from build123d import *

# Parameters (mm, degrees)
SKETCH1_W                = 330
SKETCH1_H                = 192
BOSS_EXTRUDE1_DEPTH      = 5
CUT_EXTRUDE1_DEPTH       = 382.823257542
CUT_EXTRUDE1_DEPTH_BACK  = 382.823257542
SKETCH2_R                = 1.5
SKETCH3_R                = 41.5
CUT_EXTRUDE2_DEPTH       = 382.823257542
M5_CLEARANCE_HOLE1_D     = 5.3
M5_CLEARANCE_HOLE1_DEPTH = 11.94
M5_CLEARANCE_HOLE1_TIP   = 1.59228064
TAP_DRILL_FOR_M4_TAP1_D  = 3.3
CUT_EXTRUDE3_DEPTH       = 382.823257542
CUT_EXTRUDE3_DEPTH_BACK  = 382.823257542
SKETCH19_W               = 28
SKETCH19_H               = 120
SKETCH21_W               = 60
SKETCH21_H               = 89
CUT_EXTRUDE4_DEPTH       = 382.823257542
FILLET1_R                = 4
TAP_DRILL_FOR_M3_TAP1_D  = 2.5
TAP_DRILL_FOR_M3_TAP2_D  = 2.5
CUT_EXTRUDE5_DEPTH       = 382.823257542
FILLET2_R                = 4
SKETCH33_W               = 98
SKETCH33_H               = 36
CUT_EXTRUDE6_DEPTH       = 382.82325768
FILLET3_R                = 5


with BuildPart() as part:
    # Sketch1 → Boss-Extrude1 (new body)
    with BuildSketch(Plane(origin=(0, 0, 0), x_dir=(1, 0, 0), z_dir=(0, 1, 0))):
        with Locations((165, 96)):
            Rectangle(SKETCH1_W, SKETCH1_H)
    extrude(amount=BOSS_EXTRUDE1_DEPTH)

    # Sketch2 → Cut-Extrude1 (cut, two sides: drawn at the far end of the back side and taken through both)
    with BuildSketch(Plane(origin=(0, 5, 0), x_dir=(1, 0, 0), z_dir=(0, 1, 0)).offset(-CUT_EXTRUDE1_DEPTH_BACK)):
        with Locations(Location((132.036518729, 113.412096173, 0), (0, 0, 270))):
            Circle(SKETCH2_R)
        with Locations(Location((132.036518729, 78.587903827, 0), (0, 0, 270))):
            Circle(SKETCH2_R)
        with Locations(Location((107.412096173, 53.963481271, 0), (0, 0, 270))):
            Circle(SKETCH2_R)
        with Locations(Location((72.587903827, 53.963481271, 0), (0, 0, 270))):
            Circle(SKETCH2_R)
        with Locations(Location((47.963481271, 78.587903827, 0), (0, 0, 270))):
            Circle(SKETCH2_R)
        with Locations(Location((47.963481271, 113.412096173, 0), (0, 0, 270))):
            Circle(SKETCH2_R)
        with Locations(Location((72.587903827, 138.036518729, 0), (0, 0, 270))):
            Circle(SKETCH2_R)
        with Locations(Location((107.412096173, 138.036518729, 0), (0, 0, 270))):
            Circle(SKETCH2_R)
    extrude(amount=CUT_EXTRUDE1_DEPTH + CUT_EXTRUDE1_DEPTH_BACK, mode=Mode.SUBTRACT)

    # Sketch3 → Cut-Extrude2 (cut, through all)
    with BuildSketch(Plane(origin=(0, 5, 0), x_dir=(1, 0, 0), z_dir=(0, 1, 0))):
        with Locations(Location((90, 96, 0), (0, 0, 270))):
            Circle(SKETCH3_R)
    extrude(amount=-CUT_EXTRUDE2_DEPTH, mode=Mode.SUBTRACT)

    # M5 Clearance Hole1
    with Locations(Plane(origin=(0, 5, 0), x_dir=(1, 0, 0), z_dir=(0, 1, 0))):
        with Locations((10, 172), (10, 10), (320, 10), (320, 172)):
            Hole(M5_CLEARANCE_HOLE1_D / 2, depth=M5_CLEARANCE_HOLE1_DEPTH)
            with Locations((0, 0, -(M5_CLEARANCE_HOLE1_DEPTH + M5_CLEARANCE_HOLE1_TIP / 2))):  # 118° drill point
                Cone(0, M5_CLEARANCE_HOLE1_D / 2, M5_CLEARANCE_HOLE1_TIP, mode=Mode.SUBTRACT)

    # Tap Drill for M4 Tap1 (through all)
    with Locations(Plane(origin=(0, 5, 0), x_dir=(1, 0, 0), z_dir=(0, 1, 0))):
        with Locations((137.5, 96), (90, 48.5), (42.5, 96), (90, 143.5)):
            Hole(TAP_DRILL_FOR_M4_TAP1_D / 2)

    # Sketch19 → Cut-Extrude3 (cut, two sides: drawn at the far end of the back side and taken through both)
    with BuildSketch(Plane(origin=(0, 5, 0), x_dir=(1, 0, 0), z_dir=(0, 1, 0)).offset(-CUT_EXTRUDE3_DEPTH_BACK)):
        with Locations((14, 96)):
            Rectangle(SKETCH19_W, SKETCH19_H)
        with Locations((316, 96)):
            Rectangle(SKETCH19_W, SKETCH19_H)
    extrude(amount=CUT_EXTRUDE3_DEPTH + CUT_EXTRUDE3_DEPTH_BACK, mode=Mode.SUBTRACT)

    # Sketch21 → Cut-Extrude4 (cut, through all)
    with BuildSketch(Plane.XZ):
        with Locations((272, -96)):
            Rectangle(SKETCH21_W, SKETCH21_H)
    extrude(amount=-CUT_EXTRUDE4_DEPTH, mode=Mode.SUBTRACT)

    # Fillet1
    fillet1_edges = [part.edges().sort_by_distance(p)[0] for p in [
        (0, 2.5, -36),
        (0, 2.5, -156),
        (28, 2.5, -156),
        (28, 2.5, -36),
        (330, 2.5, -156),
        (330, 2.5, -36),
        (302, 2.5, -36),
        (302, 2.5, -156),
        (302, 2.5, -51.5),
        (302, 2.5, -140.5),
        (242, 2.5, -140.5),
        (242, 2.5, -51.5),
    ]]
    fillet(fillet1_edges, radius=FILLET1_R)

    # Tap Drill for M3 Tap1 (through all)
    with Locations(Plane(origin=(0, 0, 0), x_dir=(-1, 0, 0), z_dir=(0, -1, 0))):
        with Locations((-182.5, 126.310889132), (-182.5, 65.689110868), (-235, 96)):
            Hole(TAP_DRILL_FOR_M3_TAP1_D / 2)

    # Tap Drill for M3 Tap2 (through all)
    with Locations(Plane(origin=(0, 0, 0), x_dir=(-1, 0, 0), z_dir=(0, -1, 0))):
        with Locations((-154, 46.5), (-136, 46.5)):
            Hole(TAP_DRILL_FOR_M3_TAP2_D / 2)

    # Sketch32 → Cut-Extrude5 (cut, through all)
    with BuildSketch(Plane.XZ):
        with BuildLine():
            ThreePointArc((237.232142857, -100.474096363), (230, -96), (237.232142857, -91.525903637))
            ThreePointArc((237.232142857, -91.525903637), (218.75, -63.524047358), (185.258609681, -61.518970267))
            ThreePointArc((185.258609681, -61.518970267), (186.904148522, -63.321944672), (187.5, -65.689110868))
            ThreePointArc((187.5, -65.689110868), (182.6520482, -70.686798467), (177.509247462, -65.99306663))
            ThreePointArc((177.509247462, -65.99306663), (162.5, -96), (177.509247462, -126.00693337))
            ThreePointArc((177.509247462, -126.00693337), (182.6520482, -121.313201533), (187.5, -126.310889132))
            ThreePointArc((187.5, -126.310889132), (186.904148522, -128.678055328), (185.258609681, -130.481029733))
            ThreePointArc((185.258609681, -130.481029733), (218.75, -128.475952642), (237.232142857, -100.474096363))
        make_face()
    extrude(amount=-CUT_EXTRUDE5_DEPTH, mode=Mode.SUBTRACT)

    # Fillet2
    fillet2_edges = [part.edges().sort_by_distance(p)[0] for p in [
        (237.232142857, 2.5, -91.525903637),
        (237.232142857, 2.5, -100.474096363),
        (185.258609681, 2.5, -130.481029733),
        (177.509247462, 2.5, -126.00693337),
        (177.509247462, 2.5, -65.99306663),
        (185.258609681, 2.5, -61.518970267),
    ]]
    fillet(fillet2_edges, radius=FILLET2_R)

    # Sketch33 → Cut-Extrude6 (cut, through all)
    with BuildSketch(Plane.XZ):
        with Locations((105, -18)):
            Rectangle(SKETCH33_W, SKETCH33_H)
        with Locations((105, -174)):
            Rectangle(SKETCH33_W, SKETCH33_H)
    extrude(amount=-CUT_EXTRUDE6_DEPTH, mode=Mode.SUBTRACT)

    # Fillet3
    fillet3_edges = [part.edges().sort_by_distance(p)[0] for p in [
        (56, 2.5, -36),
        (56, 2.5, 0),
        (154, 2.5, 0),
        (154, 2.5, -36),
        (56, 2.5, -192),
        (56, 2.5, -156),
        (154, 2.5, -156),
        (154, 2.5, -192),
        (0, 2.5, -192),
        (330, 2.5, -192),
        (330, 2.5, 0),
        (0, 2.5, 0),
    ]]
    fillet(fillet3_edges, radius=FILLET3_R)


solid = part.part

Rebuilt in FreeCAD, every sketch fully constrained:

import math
import FreeCAD as App
import Part
import Sketcher

V = App.Vector
Q = App.Units.Quantity


def edges_at(feature, points):
    """Names of the edges that pass closest to the given points."""
    edges = feature.Shape.Edges
    near = lambda p: min(range(len(edges)), key=lambda i: edges[i].distToShape(Part.Vertex(*p))[0])
    return sorted({f"Edge{near(p) + 1}" for p in points})


def add_polygon(sketch, points):
    """Adds a closed chain of lines whose ends are joined by coincident constraints."""
    first, n = sketch.GeometryCount, len(points)
    for a, b in zip(points, points[1:] + points[:1]):
        sketch.addGeometry(Part.LineSegment(App.Vector(*a, 0), App.Vector(*b, 0)), False)
    for i in range(n):
        sketch.addConstraint(Sketcher.Constraint("Coincident", first + i, 2, first + (i + 1) % n, 1))

doc = App.newDocument("Part")
body = doc.addObject("PartDesign::Body", "Body")

# Sketch on XZ plane
sketch1 = body.newObject("Sketcher::SketchObject", "Sketch")
sketch1.AttachmentSupport = (doc.getObject("XZ_Plane"), [""])
sketch1.MapMode = "FlatFace"
add_polygon(sketch1, [(0, -192), (0, 0), (330, 0), (330, -192)])  # lines 0-3
sketch1.addConstraint([
    Sketcher.Constraint("Vertical", 0),
    Sketcher.Constraint("Horizontal", 1),
    Sketcher.Constraint("Vertical", 2),
    Sketcher.Constraint("Horizontal", 3),
    Sketcher.Constraint("Coincident", 0, 2, -1, 1),
    Sketcher.Constraint("DistanceX", 1, 1, 1, 2, Q("330 mm")),
    Sketcher.Constraint("DistanceY", 0, 1, 0, 2, Q("192 mm")),
])
pad1 = body.newObject("PartDesign::Pad", "Pad")
pad1.Profile = sketch1
pad1.Length = 5
pad1.Reversed = True

# Sketch on XZ plane
sketch2 = body.newObject("Sketcher::SketchObject", "Sketch001")
sketch2.AttachmentSupport = (doc.getObject("XZ_Plane"), [""])
sketch2.MapMode = "FlatFace"
sketch2.AttachmentOffset = App.Placement(V(0, 0, -5), App.Rotation())
sketch2.addGeometry([
    Part.Circle(V(132, -113.4, 0), V(0, 0, 1), 1.5),  # 0
    Part.Circle(V(132, -78.6, 0), V(0, 0, 1), 1.5),  # 1
    Part.Circle(V(107.4, -54, 0), V(0, 0, 1), 1.5),  # 2
    Part.Circle(V(72.6, -54, 0), V(0, 0, 1), 1.5),  # 3
    Part.Circle(V(48, -78.6, 0), V(0, 0, 1), 1.5),  # 4
    Part.Circle(V(48, -113.4, 0), V(0, 0, 1), 1.5),  # 5
    Part.Circle(V(72.6, -138, 0), V(0, 0, 1), 1.5),  # 6
    Part.Circle(V(107.4, -138, 0), V(0, 0, 1), 1.5),  # 7
], False)
sketch2.addConstraint([
    Sketcher.Constraint("Equal", 0, 1),
    Sketcher.Constraint("Equal", 1, 2),
    Sketcher.Constraint("Equal", 2, 3),
    Sketcher.Constraint("Equal", 3, 4),
    Sketcher.Constraint("Equal", 4, 5),
    Sketcher.Constraint("Equal", 5, 6),
    Sketcher.Constraint("Equal", 6, 7),
    Sketcher.Constraint("Horizontal", 2, 3, 3, 3),
    Sketcher.Constraint("Horizontal", 1, 3, 4, 3),
    Sketcher.Constraint("Horizontal", 0, 3, 5, 3),
    Sketcher.Constraint("Horizontal", 6, 3, 7, 3),
    Sketcher.Constraint("Vertical", 0, 3, 1, 3),
    Sketcher.Constraint("Vertical", 4, 3, 5, 3),
    Sketcher.Constraint("Vertical", 3, 3, 6, 3),
    Sketcher.Constraint("Vertical", 2, 3, 7, 3),
    Sketcher.Constraint("Diameter", 0, Q("3 mm")),
    Sketcher.Constraint("DistanceX", -1, 1, 0, 3, Q("132.036519 mm")),
    Sketcher.Constraint("DistanceY", 2, 3, -1, 1, Q("53.963481 mm")),
    Sketcher.Constraint("DistanceX", -1, 1, 4, 3, Q("47.963481 mm")),
    Sketcher.Constraint("DistanceY", 6, 3, -1, 1, Q("138.036519 mm")),
    Sketcher.Constraint("DistanceY", 0, 3, -1, 1, Q("113.412096 mm")),
    Sketcher.Constraint("DistanceY", 1, 3, -1, 1, Q("78.587904 mm")),
    Sketcher.Constraint("DistanceX", -1, 1, 2, 3, Q("107.412096 mm")),
    Sketcher.Constraint("DistanceX", -1, 1, 3, 3, Q("72.587904 mm")),
])
pocket1 = body.newObject("PartDesign::Pocket", "Pocket")
pocket1.Profile = sketch2
pocket1.Type = "ThroughAll"
pocket1.Midplane = True

# Sketch on XZ plane
sketch3 = body.newObject("Sketcher::SketchObject", "Sketch002")
sketch3.AttachmentSupport = (doc.getObject("XZ_Plane"), [""])
sketch3.MapMode = "FlatFace"
sketch3.AttachmentOffset = App.Placement(V(0, 0, -5), App.Rotation())
sketch3.addGeometry(Part.Circle(V(90, -96, 0), V(0, 0, 1), 42), False)
sketch3.addConstraint([
    Sketcher.Constraint("Diameter", 0, Q("83 mm")),
    Sketcher.Constraint("DistanceX", -1, 1, 0, 3, Q("90 mm")),
    Sketcher.Constraint("DistanceY", 0, 3, -1, 1, Q("96 mm")),
])
pocket2 = body.newObject("PartDesign::Pocket", "Pocket001")
pocket2.Profile = sketch3
pocket2.Type = "ThroughAll"
pocket2.Reversed = True

# Sketch on XZ plane
sketch4 = body.newObject("Sketcher::SketchObject", "Sketch003")
sketch4.AttachmentSupport = (doc.getObject("XZ_Plane"), [""])
sketch4.MapMode = "FlatFace"
sketch4.AttachmentOffset = App.Placement(V(0, 0, -5), App.Rotation())
sketch4.addGeometry([
    Part.Circle(V(10, -172, 0), V(0, 0, 1), 2.6),
    Part.Circle(V(10, -10, 0), V(0, 0, 1), 2.6),
    Part.Circle(V(320, -10, 0), V(0, 0, 1), 2.6),
    Part.Circle(V(320, -172, 0), V(0, 0, 1), 2.6),
], False)
sketch4.addConstraint([
    Sketcher.Constraint("Equal", 0, 1),
    Sketcher.Constraint("Equal", 1, 2),
    Sketcher.Constraint("Equal", 2, 3),
    Sketcher.Constraint("Horizontal", 1, 3, 2, 3),
    Sketcher.Constraint("Horizontal", 0, 3, 3, 3),
    Sketcher.Constraint("Vertical", 0, 3, 1, 3),
    Sketcher.Constraint("Vertical", 2, 3, 3, 3),
    Sketcher.Constraint("Diameter", 0, Q("5.3 mm")),
    Sketcher.Constraint("DistanceX", -1, 1, 0, 3, Q("10 mm")),
    Sketcher.Constraint("DistanceY", 0, 3, -1, 1, Q("172 mm")),
    Sketcher.Constraint("DistanceY", 1, 3, -1, 1, Q("10 mm")),
    Sketcher.Constraint("DistanceX", -1, 1, 2, 3, Q("320 mm")),
])
doc.recompute()
hole = body.newObject("PartDesign::Hole", "Hole")
hole.Profile = sketch4
hole.ThreadType = "None"
hole.Diameter = 5.3
hole.DepthType = "Dimension"
hole.Depth = 11.94
hole.DrillPoint = "Angled"
hole.DrillPointAngle = 118
hole.Reversed = True

# Sketch on XZ plane
sketch5 = body.newObject("Sketcher::SketchObject", "Sketch004")
sketch5.AttachmentSupport = (doc.getObject("XZ_Plane"), [""])
sketch5.MapMode = "FlatFace"
sketch5.AttachmentOffset = App.Placement(V(0, 0, -5), App.Rotation())
sketch5.addGeometry([
    Part.Circle(V(137.5, -96, 0), V(0, 0, 1), 1.6),
    Part.Circle(V(90, -48.5, 0), V(0, 0, 1), 1.6),
    Part.Circle(V(42.5, -96, 0), V(0, 0, 1), 1.6),
    Part.Circle(V(90, -143.5, 0), V(0, 0, 1), 1.6),
], False)
sketch5.addConstraint([
    Sketcher.Constraint("Equal", 0, 1),
    Sketcher.Constraint("Equal", 1, 2),
    Sketcher.Constraint("Equal", 2, 3),
    Sketcher.Constraint("Horizontal", 0, 3, 2, 3),
    Sketcher.Constraint("Vertical", 1, 3, 3, 3),
    Sketcher.Constraint("Diameter", 0, Q("3.3 mm")),
    Sketcher.Constraint("DistanceY", 0, 3, -1, 1, Q("96 mm")),
    Sketcher.Constraint("DistanceX", -1, 1, 1, 3, Q("90 mm")),
    Sketcher.Constraint("DistanceX", 2, 3, 0, 3, Q("95 mm")),
    Sketcher.Constraint("DistanceY", 3, 3, 1, 3, Q("95 mm")),
    Sketcher.Constraint("DistanceX", -1, 1, 0, 3, Q("137.5 mm")),
    Sketcher.Constraint("DistanceY", 1, 3, -1, 1, Q("48.5 mm")),
])
doc.recompute()
hole2 = body.newObject("PartDesign::Hole", "Hole001")
hole2.Profile = sketch5
hole2.ThreadType = "None"
hole2.Diameter = 3.3
hole2.DepthType = "ThroughAll"
hole2.Reversed = True

# Sketch on XZ plane
sketch6 = body.newObject("Sketcher::SketchObject", "Sketch005")
sketch6.AttachmentSupport = (doc.getObject("XZ_Plane"), [""])
sketch6.MapMode = "FlatFace"
sketch6.AttachmentOffset = App.Placement(V(0, 0, -5), App.Rotation())
add_polygon(sketch6, [(0, -156), (0, -36), (28, -36), (28, -156)])  # lines 0-3
add_polygon(sketch6, [(302, -156), (302, -36), (330, -36), (330, -156)])  # lines 4-7
sketch6.addConstraint([
    Sketcher.Constraint("Vertical", 0),
    Sketcher.Constraint("Horizontal", 1),
    Sketcher.Constraint("Vertical", 2),
    Sketcher.Constraint("Horizontal", 3),
    Sketcher.Constraint("Vertical", 4),
    Sketcher.Constraint("Horizontal", 5),
    Sketcher.Constraint("Vertical", 6),
    Sketcher.Constraint("Horizontal", 7),
    Sketcher.Constraint("PointOnObject", 0, 2, -2),
    Sketcher.Constraint("Horizontal", 1, 2, 4, 2),
    Sketcher.Constraint("Horizontal", 3, 2, 6, 2),
    Sketcher.Constraint("Equal", 3, 5),
    Sketcher.Constraint("DistanceX", 1, 1, 1, 2, Q("28 mm")),
    Sketcher.Constraint("DistanceY", 0, 1, 0, 2, Q("120 mm")),
    Sketcher.Constraint("DistanceY", 0, 2, -1, 1, Q("36 mm")),
    Sketcher.Constraint("DistanceX", -1, 1, 4, 2, Q("302 mm")),
])
pocket3 = body.newObject("PartDesign::Pocket", "Pocket002")
pocket3.Profile = sketch6
pocket3.Type = "ThroughAll"
pocket3.Midplane = True

# Sketch on XZ plane
sketch7 = body.newObject("Sketcher::SketchObject", "Sketch006")
sketch7.AttachmentSupport = (doc.getObject("XZ_Plane"), [""])
sketch7.MapMode = "FlatFace"
add_polygon(sketch7, [(242, -52), (242, -140), (302, -140), (302, -52)])  # lines 0-3
sketch7.addConstraint([
    Sketcher.Constraint("Vertical", 0),
    Sketcher.Constraint("Horizontal", 1),
    Sketcher.Constraint("Vertical", 2),
    Sketcher.Constraint("Horizontal", 3),
    Sketcher.Constraint("DistanceX", 1, 1, 1, 2, Q("60 mm")),
    Sketcher.Constraint("DistanceY", 0, 2, 0, 1, Q("89 mm")),
    Sketcher.Constraint("DistanceX", -1, 1, 0, 2, Q("242 mm")),
    Sketcher.Constraint("DistanceY", 0, 2, -1, 1, Q("140.5 mm")),
])
pocket4 = body.newObject("PartDesign::Pocket", "Pocket003")
pocket4.Profile = sketch7
pocket4.Type = "ThroughAll"
doc.recompute()

fillet = body.newObject("PartDesign::Fillet", "Fillet")
fillet.Base = (pocket4, edges_at(pocket4, [
    (0, 2.5, -36),
    (0, 2.5, -156),
    (28, 2.5, -156),
    (28, 2.5, -36),
    (330, 2.5, -156),
    (330, 2.5, -36),
    (302, 2.5, -36),
    (302, 2.5, -156),
    (302, 2.5, -51.5),
    (302, 2.5, -140.5),
    (242, 2.5, -140.5),
    (242, 2.5, -51.5),
]))
fillet.Radius = 4

# Sketch on XZ plane
sketch8 = body.newObject("Sketcher::SketchObject", "Sketch007")
sketch8.AttachmentSupport = (doc.getObject("XZ_Plane"), [""])
sketch8.MapMode = "FlatFace"
sketch8.addGeometry([
    Part.Circle(V(182.5, -126.3, 0), V(0, 0, 1), 1.2),
    Part.Circle(V(182.5, -65.7, 0), V(0, 0, 1), 1.2),
    Part.Circle(V(235, -96, 0), V(0, 0, 1), 1.2),
], False)
sketch8.addConstraint([
    Sketcher.Constraint("Equal", 0, 1),
    Sketcher.Constraint("Equal", 1, 2),
    Sketcher.Constraint("Vertical", 0, 3, 1, 3),
    Sketcher.Constraint("Diameter", 0, Q("2.5 mm")),
    Sketcher.Constraint("DistanceX", -1, 1, 2, 3, Q("235 mm")),
    Sketcher.Constraint("DistanceY", 2, 3, -1, 1, Q("96 mm")),
    Sketcher.Constraint("DistanceX", -1, 1, 0, 3, Q("182.5 mm")),
    Sketcher.Constraint("DistanceY", 0, 3, -1, 1, Q("126.310889 mm")),
    Sketcher.Constraint("DistanceY", 1, 3, -1, 1, Q("65.689111 mm")),
])
doc.recompute()
hole3 = body.newObject("PartDesign::Hole", "Hole002")
hole3.Profile = sketch8
hole3.ThreadType = "None"
hole3.Diameter = 2.5
hole3.DepthType = "ThroughAll"

# Sketch on XZ plane
sketch9 = body.newObject("Sketcher::SketchObject", "Sketch008")
sketch9.AttachmentSupport = (doc.getObject("XZ_Plane"), [""])
sketch9.MapMode = "FlatFace"
sketch9.addGeometry([
    Part.Circle(V(154, -46.5, 0), V(0, 0, 1), 1.2),
    Part.Circle(V(136, -46.5, 0), V(0, 0, 1), 1.2),
], False)
sketch9.addConstraint([
    Sketcher.Constraint("Equal", 0, 1),
    Sketcher.Constraint("Horizontal", 0, 3, 1, 3),
    Sketcher.Constraint("Diameter", 0, Q("2.5 mm")),
    Sketcher.Constraint("DistanceX", -1, 1, 0, 3, Q("154 mm")),
    Sketcher.Constraint("DistanceX", -1, 1, 1, 3, Q("136 mm")),
    Sketcher.Constraint("DistanceY", 0, 3, -1, 1, Q("46.5 mm")),
])
doc.recompute()
hole4 = body.newObject("PartDesign::Hole", "Hole003")
hole4.Profile = sketch9
hole4.ThreadType = "None"
hole4.Diameter = 2.5
hole4.DepthType = "ThroughAll"

# Sketch on XZ plane
sketch10 = body.newObject("Sketcher::SketchObject", "Sketch009")
sketch10.AttachmentSupport = (doc.getObject("XZ_Plane"), [""])
sketch10.MapMode = "FlatFace"
sketch10.addGeometry([
    Part.ArcOfCircle(Part.Circle(V(235, -96, 0), V(0, 0, 1), 5), math.radians(63), math.radians(297)),  # 0
    Part.ArcOfCircle(Part.Circle(V(200, -96, 0), V(0, 0, 1), 37.5), math.radians(7), math.radians(113)),  # 1
    Part.ArcOfCircle(Part.Circle(V(182.5, -65.7, 0), V(0, 0, 1), 5), math.radians(0), math.radians(57)),  # 2
    Part.ArcOfCircle(Part.Circle(V(182.5, -65.7, 0), V(0, 0, 1), 5), math.radians(-177), math.radians(0)),  # 3
    Part.ArcOfCircle(Part.Circle(V(200, -96, 0), V(0, 0, 1), 37.5), math.radians(127), math.radians(233)),  # 4
    Part.ArcOfCircle(Part.Circle(V(182.5, -126.3, 0), V(0, 0, 1), 5), math.radians(0), math.radians(177)),  # 5
    Part.ArcOfCircle(Part.Circle(V(182.5, -126.3, 0), V(0, 0, 1), 5), math.radians(-57), math.radians(0)),  # 6
    Part.ArcOfCircle(Part.Circle(V(200, -96, 0), V(0, 0, 1), 37.5), math.radians(-113), math.radians(-7)),  # 7
], False)
sketch10.addConstraint([
    Sketcher.Constraint("Coincident", 0, 1, 1, 1),
    Sketcher.Constraint("Coincident", 1, 2, 2, 2),
    Sketcher.Constraint("Tangent", 2, 1, 3, 2),
    Sketcher.Constraint("Coincident", 3, 1, 4, 1),
    Sketcher.Constraint("Coincident", 4, 2, 5, 2),
    Sketcher.Constraint("Tangent", 5, 1, 6, 2),
    Sketcher.Constraint("Coincident", 6, 1, 7, 1),
    Sketcher.Constraint("Coincident", 7, 2, 0, 2),
    Sketcher.Constraint("Coincident", 4, 3, 1, 3),
    Sketcher.Constraint("Coincident", 7, 3, 1, 3),
    Sketcher.Constraint("Equal", 0, 2),
    Sketcher.Constraint("Equal", 2, 3),
    Sketcher.Constraint("Equal", 1, 4),
    Sketcher.Constraint("Equal", 3, 5),
    Sketcher.Constraint("Equal", 5, 6),
    Sketcher.Constraint("Equal", 4, 7),
    Sketcher.Constraint("Horizontal", 0, 3, 1, 3),
    Sketcher.Constraint("Horizontal", 3, 3, 2, 1),
    Sketcher.Constraint("Horizontal", 6, 3, 5, 1),
    Sketcher.Constraint("Vertical", 3, 3, 5, 3),
    Sketcher.Constraint("Vertical", 3, 1, 4, 2),
    Sketcher.Constraint("Radius", 0, Q("5 mm")),
    Sketcher.Constraint("Radius", 1, Q("37.5 mm")),
    Sketcher.Constraint("DistanceX", -1, 1, 0, 3, Q("235 mm")),
    Sketcher.Constraint("DistanceY", 0, 3, -1, 1, Q("96 mm")),
    Sketcher.Constraint("DistanceX", -1, 1, 1, 3, Q("200 mm")),
    Sketcher.Constraint("DistanceX", -1, 1, 2, 3, Q("182.5 mm")),
    Sketcher.Constraint("DistanceY", 2, 3, -1, 1, Q("65.689111 mm")),
])
pocket5 = body.newObject("PartDesign::Pocket", "Pocket004")
pocket5.Profile = sketch10
pocket5.Type = "ThroughAll"
doc.recompute()

fillet2 = body.newObject("PartDesign::Fillet", "Fillet001")
fillet2.Base = (pocket5, edges_at(pocket5, [
    (237.232, 2.5, -91.526),
    (237.232, 2.5, -100.474),
    (185.259, 2.5, -130.481),
    (177.509, 2.5, -126.007),
    (177.509, 2.5, -65.993),
    (185.259, 2.5, -61.519),
]))
fillet2.Radius = 4

# Sketch on XZ plane
sketch11 = body.newObject("Sketcher::SketchObject", "Sketch010")
sketch11.AttachmentSupport = (doc.getObject("XZ_Plane"), [""])
sketch11.MapMode = "FlatFace"
add_polygon(sketch11, [(56, 0), (56, -36), (154, -36), (154, 0)])  # lines 0-3
add_polygon(sketch11, [(56, -156), (56, -192), (154, -192), (154, -156)])  # lines 4-7
sketch11.addConstraint([
    Sketcher.Constraint("Vertical", 0),
    Sketcher.Constraint("Horizontal", 1),
    Sketcher.Constraint("Vertical", 2),
    Sketcher.Constraint("Horizontal", 3),
    Sketcher.Constraint("Vertical", 4),
    Sketcher.Constraint("Horizontal", 5),
    Sketcher.Constraint("Vertical", 6),
    Sketcher.Constraint("Horizontal", 7),
    Sketcher.Constraint("PointOnObject", 2, 2, -1),
    Sketcher.Constraint("Vertical", 3, 2, 4, 2),
    Sketcher.Constraint("Vertical", 2, 2, 5, 2),
    Sketcher.Constraint("Equal", 2, 4),
    Sketcher.Constraint("DistanceX", 1, 1, 1, 2, Q("98 mm")),
    Sketcher.Constraint("DistanceY", 0, 2, 0, 1, Q("36 mm")),
    Sketcher.Constraint("DistanceX", -1, 1, 0, 2, Q("56 mm")),
    Sketcher.Constraint("DistanceY", 4, 2, -1, 1, Q("192 mm")),
])
pocket6 = body.newObject("PartDesign::Pocket", "Pocket005")
pocket6.Profile = sketch11
pocket6.Type = "ThroughAll"
doc.recompute()

fillet3 = body.newObject("PartDesign::Fillet", "Fillet002")
fillet3.Base = (pocket6, edges_at(pocket6, [
    (56, 2.5, -36),
    (56, 2.5, 0),
    (154, 2.5, 0),
    (154, 2.5, -36),
    (56, 2.5, -192),
    (56, 2.5, -156),
    (154, 2.5, -156),
    (154, 2.5, -192),
    (0, 2.5, -192),
    (330, 2.5, -192),
    (330, 2.5, 0),
    (0, 2.5, 0),
]))
fillet3.Radius = 5

doc.recompute()
